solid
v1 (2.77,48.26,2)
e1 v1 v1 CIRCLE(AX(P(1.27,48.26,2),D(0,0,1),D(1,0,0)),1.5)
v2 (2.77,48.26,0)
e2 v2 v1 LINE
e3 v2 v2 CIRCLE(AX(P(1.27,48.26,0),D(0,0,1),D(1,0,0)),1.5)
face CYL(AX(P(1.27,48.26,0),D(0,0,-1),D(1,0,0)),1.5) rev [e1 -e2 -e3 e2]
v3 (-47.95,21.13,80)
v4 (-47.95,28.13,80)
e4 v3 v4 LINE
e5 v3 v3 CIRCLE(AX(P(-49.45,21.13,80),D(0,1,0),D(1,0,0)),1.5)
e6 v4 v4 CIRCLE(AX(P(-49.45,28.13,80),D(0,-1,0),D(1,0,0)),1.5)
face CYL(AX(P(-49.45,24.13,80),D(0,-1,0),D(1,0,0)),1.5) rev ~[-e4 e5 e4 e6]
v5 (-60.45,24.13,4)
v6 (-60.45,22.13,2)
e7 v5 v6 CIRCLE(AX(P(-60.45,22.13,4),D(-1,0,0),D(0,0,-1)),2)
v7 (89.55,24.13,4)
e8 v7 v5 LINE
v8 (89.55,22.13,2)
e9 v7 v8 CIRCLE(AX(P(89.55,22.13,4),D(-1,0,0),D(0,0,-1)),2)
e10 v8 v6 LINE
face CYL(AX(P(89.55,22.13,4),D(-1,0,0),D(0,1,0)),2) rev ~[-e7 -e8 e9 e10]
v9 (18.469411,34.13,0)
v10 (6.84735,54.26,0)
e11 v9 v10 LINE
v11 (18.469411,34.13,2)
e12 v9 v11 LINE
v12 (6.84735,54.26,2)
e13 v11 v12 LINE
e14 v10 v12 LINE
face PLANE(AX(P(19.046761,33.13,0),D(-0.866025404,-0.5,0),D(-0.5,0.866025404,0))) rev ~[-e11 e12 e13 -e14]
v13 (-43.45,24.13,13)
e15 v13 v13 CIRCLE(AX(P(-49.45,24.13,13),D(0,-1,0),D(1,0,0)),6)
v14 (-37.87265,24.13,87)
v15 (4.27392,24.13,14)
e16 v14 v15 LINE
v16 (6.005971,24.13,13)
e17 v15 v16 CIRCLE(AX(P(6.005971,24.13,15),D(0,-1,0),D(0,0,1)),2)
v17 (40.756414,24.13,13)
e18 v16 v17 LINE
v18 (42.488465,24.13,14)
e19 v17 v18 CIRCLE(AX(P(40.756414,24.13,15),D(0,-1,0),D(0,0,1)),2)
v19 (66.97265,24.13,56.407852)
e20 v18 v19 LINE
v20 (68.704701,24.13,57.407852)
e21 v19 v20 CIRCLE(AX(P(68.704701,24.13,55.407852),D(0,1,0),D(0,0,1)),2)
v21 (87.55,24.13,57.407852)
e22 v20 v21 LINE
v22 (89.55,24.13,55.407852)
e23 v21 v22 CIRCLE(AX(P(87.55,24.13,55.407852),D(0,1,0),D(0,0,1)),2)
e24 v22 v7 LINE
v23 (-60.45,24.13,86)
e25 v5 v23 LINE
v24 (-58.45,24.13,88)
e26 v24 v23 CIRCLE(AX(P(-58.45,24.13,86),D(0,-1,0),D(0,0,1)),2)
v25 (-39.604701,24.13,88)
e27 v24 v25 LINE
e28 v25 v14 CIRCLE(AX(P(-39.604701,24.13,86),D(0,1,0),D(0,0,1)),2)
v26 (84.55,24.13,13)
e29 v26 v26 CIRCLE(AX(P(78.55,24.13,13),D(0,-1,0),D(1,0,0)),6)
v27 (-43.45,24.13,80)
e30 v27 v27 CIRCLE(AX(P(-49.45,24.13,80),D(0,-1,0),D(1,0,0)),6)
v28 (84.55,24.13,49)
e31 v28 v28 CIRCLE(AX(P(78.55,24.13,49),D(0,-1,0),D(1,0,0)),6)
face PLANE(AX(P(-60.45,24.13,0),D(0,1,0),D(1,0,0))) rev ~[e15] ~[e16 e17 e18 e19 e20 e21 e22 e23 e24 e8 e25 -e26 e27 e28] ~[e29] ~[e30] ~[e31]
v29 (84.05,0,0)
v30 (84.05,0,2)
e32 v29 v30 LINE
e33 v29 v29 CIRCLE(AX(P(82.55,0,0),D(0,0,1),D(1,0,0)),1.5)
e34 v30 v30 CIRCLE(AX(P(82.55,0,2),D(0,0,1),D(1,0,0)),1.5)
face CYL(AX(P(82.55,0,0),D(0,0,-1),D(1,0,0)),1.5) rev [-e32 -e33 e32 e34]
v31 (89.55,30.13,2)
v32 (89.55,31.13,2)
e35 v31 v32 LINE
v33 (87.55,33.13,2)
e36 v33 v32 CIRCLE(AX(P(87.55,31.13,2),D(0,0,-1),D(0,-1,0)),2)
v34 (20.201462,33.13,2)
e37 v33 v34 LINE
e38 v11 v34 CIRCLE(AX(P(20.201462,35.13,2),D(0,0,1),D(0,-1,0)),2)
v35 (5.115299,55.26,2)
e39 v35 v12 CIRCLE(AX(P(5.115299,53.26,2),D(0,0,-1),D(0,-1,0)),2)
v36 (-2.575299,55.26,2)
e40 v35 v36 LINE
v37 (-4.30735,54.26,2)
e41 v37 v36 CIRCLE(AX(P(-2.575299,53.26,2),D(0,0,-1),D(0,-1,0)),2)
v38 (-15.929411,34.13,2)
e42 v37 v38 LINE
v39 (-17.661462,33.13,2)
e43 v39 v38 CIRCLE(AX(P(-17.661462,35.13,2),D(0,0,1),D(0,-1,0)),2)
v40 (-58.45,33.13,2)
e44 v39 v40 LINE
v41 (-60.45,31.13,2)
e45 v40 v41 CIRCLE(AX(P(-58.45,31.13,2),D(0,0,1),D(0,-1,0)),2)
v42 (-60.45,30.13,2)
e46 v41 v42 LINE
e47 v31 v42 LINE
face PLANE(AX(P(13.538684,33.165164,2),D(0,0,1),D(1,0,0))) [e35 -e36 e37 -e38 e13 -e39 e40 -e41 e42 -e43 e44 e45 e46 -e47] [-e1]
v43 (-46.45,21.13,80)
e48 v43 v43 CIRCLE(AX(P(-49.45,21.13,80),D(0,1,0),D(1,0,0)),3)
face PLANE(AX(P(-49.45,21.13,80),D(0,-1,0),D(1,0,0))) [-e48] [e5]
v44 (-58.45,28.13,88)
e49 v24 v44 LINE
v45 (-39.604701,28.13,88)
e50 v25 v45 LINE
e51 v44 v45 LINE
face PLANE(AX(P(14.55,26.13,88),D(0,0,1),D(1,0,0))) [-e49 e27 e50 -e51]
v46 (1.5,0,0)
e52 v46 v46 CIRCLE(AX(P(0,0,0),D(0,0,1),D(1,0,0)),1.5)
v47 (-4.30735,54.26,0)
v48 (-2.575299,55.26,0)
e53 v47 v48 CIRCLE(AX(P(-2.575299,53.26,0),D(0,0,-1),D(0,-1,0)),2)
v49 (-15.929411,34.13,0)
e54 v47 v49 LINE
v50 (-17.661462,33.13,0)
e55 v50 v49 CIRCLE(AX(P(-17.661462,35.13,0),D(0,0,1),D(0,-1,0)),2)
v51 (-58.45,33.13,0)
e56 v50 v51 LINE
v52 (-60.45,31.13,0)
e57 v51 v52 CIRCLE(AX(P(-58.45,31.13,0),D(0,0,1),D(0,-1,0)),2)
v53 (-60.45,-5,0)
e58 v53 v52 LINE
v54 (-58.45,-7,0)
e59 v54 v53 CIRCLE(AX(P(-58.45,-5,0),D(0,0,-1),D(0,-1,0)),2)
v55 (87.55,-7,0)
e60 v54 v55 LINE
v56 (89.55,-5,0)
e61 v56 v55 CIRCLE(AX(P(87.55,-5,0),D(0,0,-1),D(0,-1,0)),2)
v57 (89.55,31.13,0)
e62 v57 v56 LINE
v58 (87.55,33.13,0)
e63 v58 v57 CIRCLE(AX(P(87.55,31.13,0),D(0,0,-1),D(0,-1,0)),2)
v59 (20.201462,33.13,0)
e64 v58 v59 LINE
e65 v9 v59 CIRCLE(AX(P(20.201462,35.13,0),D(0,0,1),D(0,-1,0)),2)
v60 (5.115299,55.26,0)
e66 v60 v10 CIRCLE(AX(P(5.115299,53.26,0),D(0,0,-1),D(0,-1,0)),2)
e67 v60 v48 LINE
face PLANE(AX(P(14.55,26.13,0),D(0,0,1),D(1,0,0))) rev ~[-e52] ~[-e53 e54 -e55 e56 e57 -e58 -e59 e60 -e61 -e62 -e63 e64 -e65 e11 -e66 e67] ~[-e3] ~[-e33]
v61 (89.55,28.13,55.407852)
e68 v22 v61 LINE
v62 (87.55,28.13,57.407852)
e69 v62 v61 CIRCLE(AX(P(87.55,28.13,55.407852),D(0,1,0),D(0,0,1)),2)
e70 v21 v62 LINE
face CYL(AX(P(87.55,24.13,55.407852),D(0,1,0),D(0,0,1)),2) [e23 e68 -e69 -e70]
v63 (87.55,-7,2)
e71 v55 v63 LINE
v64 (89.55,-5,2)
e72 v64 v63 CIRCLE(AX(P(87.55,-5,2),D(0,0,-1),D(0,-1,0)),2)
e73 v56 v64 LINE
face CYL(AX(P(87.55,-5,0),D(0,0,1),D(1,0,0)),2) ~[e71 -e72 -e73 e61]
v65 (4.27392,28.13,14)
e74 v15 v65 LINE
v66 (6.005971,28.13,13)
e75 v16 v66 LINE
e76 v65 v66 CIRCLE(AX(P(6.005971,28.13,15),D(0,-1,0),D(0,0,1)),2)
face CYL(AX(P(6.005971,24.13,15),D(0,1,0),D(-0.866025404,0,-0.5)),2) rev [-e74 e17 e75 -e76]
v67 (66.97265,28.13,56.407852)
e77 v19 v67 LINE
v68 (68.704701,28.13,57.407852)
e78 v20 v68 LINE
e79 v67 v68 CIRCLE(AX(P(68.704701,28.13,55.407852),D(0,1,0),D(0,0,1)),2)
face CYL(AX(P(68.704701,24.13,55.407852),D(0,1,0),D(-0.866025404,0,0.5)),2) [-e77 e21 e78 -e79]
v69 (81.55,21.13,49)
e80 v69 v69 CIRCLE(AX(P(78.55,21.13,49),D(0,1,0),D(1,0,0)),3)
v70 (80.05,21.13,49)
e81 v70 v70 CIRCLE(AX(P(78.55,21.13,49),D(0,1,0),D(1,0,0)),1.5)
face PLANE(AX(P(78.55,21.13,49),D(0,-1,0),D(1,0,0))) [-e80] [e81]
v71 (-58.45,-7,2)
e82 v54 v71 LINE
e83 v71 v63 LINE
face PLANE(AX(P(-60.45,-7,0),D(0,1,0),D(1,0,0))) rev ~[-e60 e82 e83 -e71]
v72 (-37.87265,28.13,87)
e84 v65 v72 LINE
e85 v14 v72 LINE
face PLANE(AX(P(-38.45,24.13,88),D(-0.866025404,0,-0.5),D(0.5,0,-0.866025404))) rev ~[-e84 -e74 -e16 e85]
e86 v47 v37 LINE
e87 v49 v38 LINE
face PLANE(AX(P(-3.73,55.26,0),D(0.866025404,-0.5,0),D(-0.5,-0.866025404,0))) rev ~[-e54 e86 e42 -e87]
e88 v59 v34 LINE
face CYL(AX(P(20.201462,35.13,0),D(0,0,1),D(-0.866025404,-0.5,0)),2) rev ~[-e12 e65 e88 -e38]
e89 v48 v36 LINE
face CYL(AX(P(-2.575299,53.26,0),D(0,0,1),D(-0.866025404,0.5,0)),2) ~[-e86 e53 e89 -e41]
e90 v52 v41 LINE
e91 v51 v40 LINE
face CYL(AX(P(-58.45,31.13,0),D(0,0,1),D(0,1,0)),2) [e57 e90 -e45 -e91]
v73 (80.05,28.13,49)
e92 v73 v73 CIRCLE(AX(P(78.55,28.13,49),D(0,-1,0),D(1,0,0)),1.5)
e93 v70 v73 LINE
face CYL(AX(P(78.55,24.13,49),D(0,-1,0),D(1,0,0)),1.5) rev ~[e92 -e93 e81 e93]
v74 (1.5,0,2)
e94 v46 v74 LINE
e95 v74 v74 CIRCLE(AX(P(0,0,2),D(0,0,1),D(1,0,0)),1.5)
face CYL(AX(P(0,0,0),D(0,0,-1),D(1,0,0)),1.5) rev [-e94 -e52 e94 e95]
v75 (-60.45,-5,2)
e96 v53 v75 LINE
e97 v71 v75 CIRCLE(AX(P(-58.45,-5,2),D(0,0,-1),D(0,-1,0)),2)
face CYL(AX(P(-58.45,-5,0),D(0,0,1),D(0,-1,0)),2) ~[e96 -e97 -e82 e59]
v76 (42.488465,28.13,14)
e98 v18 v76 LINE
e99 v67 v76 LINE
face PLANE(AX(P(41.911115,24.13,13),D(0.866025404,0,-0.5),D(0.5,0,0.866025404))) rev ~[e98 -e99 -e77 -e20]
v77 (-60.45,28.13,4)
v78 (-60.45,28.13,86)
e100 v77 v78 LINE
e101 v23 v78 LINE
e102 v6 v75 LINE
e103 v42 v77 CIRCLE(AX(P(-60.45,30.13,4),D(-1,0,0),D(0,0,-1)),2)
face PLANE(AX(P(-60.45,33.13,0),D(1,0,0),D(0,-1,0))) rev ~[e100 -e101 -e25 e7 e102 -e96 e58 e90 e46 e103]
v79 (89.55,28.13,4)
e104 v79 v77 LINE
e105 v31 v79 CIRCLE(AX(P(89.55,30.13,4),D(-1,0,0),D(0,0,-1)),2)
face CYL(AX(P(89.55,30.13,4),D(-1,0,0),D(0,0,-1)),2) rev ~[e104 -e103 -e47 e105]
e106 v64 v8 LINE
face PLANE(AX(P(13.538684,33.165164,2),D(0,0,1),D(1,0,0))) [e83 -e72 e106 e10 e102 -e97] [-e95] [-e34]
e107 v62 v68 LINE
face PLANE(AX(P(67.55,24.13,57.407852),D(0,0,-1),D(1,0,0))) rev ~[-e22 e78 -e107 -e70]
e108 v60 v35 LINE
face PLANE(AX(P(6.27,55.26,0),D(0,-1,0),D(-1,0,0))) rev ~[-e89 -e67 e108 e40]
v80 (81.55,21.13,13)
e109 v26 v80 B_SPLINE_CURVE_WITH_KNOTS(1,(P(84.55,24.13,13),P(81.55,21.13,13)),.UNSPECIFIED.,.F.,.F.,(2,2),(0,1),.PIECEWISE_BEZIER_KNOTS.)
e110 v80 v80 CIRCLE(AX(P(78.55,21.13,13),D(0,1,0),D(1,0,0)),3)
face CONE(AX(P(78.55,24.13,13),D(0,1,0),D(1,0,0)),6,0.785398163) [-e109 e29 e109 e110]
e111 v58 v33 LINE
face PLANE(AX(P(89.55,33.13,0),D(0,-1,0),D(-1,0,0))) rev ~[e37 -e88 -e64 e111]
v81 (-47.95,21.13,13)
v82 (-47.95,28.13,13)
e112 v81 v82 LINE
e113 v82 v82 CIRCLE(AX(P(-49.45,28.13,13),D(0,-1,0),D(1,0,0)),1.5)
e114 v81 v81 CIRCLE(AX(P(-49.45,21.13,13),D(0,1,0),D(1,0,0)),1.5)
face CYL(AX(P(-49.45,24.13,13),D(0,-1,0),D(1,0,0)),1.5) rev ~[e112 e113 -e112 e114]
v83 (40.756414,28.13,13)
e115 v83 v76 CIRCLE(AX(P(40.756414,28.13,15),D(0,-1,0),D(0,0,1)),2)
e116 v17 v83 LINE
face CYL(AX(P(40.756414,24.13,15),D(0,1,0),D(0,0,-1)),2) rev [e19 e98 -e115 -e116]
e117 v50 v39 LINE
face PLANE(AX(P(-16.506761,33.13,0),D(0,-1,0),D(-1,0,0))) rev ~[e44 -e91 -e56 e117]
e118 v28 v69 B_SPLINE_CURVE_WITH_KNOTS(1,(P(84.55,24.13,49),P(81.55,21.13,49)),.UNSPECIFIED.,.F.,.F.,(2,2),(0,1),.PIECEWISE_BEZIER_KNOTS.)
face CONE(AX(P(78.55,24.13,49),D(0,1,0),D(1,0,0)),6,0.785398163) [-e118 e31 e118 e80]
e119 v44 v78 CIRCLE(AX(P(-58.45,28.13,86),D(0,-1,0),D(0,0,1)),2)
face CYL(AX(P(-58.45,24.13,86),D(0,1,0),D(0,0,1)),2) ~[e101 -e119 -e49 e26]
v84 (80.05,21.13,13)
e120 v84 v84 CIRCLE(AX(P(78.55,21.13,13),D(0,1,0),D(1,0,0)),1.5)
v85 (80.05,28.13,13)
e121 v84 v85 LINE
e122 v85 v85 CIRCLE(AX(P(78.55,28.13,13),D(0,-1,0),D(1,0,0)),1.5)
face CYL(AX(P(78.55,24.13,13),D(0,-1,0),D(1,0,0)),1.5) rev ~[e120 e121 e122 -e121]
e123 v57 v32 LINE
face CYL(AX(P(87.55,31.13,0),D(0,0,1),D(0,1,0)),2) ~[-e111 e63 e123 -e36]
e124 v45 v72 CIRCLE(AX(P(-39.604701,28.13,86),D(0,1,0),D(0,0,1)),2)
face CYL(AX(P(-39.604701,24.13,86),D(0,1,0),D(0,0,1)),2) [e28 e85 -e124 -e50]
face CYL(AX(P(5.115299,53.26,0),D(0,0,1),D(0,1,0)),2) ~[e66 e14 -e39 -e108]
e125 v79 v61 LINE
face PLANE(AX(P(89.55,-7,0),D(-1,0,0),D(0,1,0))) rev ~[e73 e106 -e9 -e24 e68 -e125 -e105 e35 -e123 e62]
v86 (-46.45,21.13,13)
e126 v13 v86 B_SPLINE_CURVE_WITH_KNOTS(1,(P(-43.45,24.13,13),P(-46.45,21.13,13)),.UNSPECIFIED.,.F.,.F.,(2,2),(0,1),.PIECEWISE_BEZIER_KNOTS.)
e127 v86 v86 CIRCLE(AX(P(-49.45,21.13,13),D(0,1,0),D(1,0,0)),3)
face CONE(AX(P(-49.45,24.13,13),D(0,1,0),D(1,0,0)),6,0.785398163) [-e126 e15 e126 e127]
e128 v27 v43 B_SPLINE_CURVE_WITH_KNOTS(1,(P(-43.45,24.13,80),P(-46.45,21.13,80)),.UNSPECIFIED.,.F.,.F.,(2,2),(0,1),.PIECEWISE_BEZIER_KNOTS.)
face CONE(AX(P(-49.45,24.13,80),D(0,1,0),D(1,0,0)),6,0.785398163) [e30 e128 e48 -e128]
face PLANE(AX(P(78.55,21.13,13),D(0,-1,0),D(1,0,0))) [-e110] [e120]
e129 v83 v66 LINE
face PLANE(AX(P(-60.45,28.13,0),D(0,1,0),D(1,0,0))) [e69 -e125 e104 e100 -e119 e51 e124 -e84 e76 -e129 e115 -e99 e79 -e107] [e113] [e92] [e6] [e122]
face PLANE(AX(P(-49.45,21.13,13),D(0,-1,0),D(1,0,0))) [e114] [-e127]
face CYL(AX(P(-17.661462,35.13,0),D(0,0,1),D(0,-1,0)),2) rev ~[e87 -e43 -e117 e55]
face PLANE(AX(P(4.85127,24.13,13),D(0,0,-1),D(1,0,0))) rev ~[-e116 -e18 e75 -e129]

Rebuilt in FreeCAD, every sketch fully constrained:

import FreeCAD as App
import Part
import Sketcher
from FreeCAD import Vector
Q = App.Units.Quantity


def edges_at(feature, points):
    """Names of the edges that pass closest to the given points."""
    edges = feature.Shape.Edges
    near = lambda p: min(range(len(edges)), key=lambda i: edges[i].distToShape(Part.Vertex(*p))[0])
    return sorted({f"Edge{near(p) + 1}" for p in points})


def add_polygon(sketch, points):
    """Adds a closed chain of lines whose ends are joined by coincident constraints."""
    first, n = sketch.GeometryCount, len(points)
    for a, b in zip(points, points[1:] + points[:1]):
        sketch.addGeometry(Part.LineSegment(App.Vector(*a, 0), App.Vector(*b, 0)), False)
    for i in range(n):
        sketch.addConstraint(Sketcher.Constraint("Coincident", first + i, 2, first + (i + 1) % n, 1))

doc = App.newDocument("Part")
body = doc.addObject("PartDesign::Body", "Body")

sketch1 = body.newObject("Sketcher::SketchObject", "Sketch")
sketch1.AttachmentSupport = (doc.getObject("XY_Plane"), [""])
sketch1.MapMode = "FlatFace"
add_polygon(sketch1, [(6.3, 55.3), (-3.7, 55.3), (-16.5, 33.1), (-60.5, 33.1), (-60.5, -7), (89.5, -7), (89.5, 33.1), (19, 33.1)])
sketch1.addGeometry(Part.Circle(Vector(0, 0, 0), Vector(0, 0, 1), 1.5), False)
sketch1.addGeometry(Part.Circle(Vector(82.5, 0, 0), Vector(0, 0, 1), 1.5), False)
sketch1.addGeometry(Part.Circle(Vector(1.3, 48.3, 0), Vector(0, 0, 1), 1.5), False)
sketch1.addConstraint([
    Sketcher.Constraint("Horizontal", 0),
    Sketcher.Constraint("Horizontal", 2),
    Sketcher.Constraint("Vertical", 3),
    Sketcher.Constraint("Horizontal", 4),
    Sketcher.Constraint("Vertical", 5),
    Sketcher.Constraint("Horizontal", 6),
    Sketcher.Constraint("Coincident", 8, 3, -1, 1),
    Sketcher.Constraint("Equal", 8, 9),
    Sketcher.Constraint("Equal", 9, 10),
    Sketcher.Constraint("PointOnObject", 9, 3, -1),
    Sketcher.Constraint("Horizontal", 2, 2, 5, 2),
    Sketcher.Constraint("Equal", 1, 7),
    Sketcher.Constraint("Diameter", 8, Q("3 mm")),
    Sketcher.Constraint("DistanceX", 0, 2, 0, 1, Q("10 mm")),
    Sketcher.Constraint("DistanceX", 4, 1, 4, 2, Q("150 mm")),
    Sketcher.Constraint("Angle", 1, Q("-120 deg")),
    Sketcher.Constraint("DistanceY", 3, 2, -1, 1, Q("7 mm")),
    Sketcher.Constraint("DistanceX", 0, 2, 10, 3, Q("5 mm")),
    Sketcher.Constraint("DistanceY", 10, 3, 0, 2, Q("7 mm")),
    Sketcher.Constraint("DistanceX", 2, 2, 9, 3, Q("143 mm")),
    Sketcher.Constraint("DistanceY", 3, 2, 3, 1, Q("40.13 mm")),
    Sketcher.Constraint("DistanceX", -1, 1, 9, 3, Q("82.55 mm")),
    Sketcher.Constraint("DistanceX", -1, 1, 10, 3, Q("1.27 mm")),
    Sketcher.Constraint("DistanceY", -1, 1, 10, 3, Q("48.26 mm")),
])
pad1 = body.newObject("PartDesign::Pad", "Pad")
pad1.Profile = sketch1
pad1.Length = 2

sketch2 = body.newObject("Sketcher::SketchObject", "Sketch001")
sketch2.AttachmentSupport = (doc.getObject("XY_Plane"), [""])
sketch2.MapMode = "FlatFace"
add_polygon(sketch2, [(-60.5, 28.1), (-60.5, 24.1), (89.5, 24.1), (89.5, 28.1)])
sketch2.addConstraint([
    Sketcher.Constraint("Vertical", 0),
    Sketcher.Constraint("Horizontal", 1),
    Sketcher.Constraint("Vertical", 2),
    Sketcher.Constraint("Horizontal", 3),
    Sketcher.Constraint("DistanceX", 1, 1, 1, 2, Q("150 mm")),
    Sketcher.Constraint("DistanceY", 0, 2, 0, 1, Q("4 mm")),
    Sketcher.Constraint("DistanceX", 0, 2, -1, 1, Q("60.45 mm")),
    Sketcher.Constraint("DistanceY", -1, 1, 0, 2, Q("24.13 mm")),
])
pad2 = body.newObject("PartDesign::Pad", "Pad001")
pad2.Profile = sketch2
pad2.Length = 88

sketch3 = body.newObject("Sketcher::SketchObject", "Sketch002")
sketch3.AttachmentSupport = (doc.getObject("XZ_Plane"), [""])
sketch3.MapMode = "FlatFace"
sketch3.AttachmentOffset = App.Placement(Vector(0, 0, -24.13), App.Rotation())
sketch3.addGeometry([
    Part.Circle(Vector(-49, 80, 0), Vector(0, 0, 1), 6),
    Part.Circle(Vector(-49, 13, 0), Vector(0, 0, 1), 6),
    Part.Circle(Vector(79, 13, 0), Vector(0, 0, 1), 6),
    Part.Circle(Vector(79, 49, 0), Vector(0, 0, 1), 6),
], False)
sketch3.addConstraint([
    Sketcher.Constraint("Equal", 0, 1),
    Sketcher.Constraint("Equal", 1, 2),
    Sketcher.Constraint("Equal", 2, 3),
    Sketcher.Constraint("Horizontal", 1, 3, 2, 3),
    Sketcher.Constraint("Vertical", 0, 3, 1, 3),
    Sketcher.Constraint("Vertical", 2, 3, 3, 3),
    Sketcher.Constraint("Diameter", 0, Q("12 mm")),
    Sketcher.Constraint("DistanceY", -1, 1, 0, 3, Q("80 mm")),
    Sketcher.Constraint("DistanceY", -1, 1, 1, 3, Q("13 mm")),
    Sketcher.Constraint("DistanceY", -1, 1, 3, 3, Q("49 mm")),
    Sketcher.Constraint("DistanceX", 1, 3, 2, 3, Q("128 mm")),
    Sketcher.Constraint("DistanceX", 0, 3, -1, 1, Q("49.45 mm")),
])
pad3 = body.newObject("PartDesign::Pad", "Pad002")
pad3.Profile = sketch3
pad3.Length = 3
pad3.TaperAngle = -45

sketch4 = body.newObject("Sketcher::SketchObject", "Sketch003")
sketch4.AttachmentSupport = (doc.getObject("XZ_Plane"), [""])
sketch4.MapMode = "FlatFace"
sketch4.AttachmentOffset = App.Placement(Vector(0, 0, -24.13), App.Rotation())
sketch4.addGeometry(Part.Circle(Vector(-49.5, 13, 0), Vector(0, 0, 1), 1.5), False)
sketch4.addGeometry(Part.Circle(Vector(78.5, 13, 0), Vector(0, 0, 1), 1.5), False)
sketch4.addGeometry(Part.Circle(Vector(78.5, 49, 0), Vector(0, 0, 1), 1.5), False)
sketch4.addGeometry(Part.Circle(Vector(-49.5, 80, 0), Vector(0, 0, 1), 1.5), False)
add_polygon(sketch4, [(89.5, 88), (-38.5, 88), (4.9, 13), (41.9, 13), (67.5, 57.4), (89.5, 57.4)])
sketch4.addConstraint([
    Sketcher.Constraint("Horizontal", 4),
    Sketcher.Constraint("Horizontal", 6),
    Sketcher.Constraint("Horizontal", 8),
    Sketcher.Constraint("Vertical", 9),
    Sketcher.Constraint("Equal", 0, 1),
    Sketcher.Constraint("Equal", 1, 2),
    Sketcher.Constraint("Equal", 2, 3),
    Sketcher.Constraint("Horizontal", 0, 3, 1, 3),
    Sketcher.Constraint("Horizontal", 1, 3, 5, 2),
    Sketcher.Constraint("Vertical", 1, 3, 2, 3),
    Sketcher.Constraint("Vertical", 0, 3, 3, 3),
    Sketcher.Constraint("Diameter", 0, Q("3 mm")),
    Sketcher.Constraint("DistanceX", 4, 2, 4, 1, Q("128 mm")),
    Sketcher.Constraint("DistanceX", 8, 1, 8, 2, Q("22 mm")),
    Sketcher.Constraint("Angle", 5, Q("-60 deg")),
    Sketcher.Constraint("Angle", 7, Q("60 deg")),
    Sketcher.Constraint("DistanceY", -1, 1, 0, 3, Q("13 mm")),
    Sketcher.Constraint("DistanceY", -1, 1, 2, 3, Q("49 mm")),
    Sketcher.Constraint("DistanceY", -1, 1, 3, 3, Q("80 mm")),
    Sketcher.Constraint("DistanceY", -1, 1, 4, 2, Q("88 mm")),
    Sketcher.Constraint("DistanceX", 0, 3, 1, 3, Q("128 mm")),
    Sketcher.Constraint("DistanceX", 3, 3, 4, 2, Q("11 mm")),
    Sketcher.Constraint("DistanceX", 0, 3, -1, 1, Q("49.45 mm")),
    Sketcher.Constraint("Distance", 7, Q("51.277771 mm")),
])
pocket1 = body.newObject("PartDesign::Pocket", "Pocket")
pocket1.Profile = sketch4
pocket1.Type = "ThroughAll"
pocket1.Midplane = True
doc.recompute()

fillet = body.newObject("PartDesign::Fillet", "Fillet")
fillet.Base = (pocket1, edges_at(pocket1, [
    (-60.45, 26.13, 88),
    (-38.45, 26.13, 88),
    (4.851, 26.13, 13),
    (41.911, 26.13, 13),
    (67.55, 26.13, 57.408),
    (89.55, 26.13, 57.408),
    (89.55, -7, 1),
    (89.55, 33.13, 1),
    (19.047, 33.13, 1),
    (6.27, 55.26, 1),
    (-3.73, 55.26, 1),
    (-16.507, 33.13, 1),
    (-60.45, 33.13, 1),
    (-60.45, -7, 1),
    (14.55, 24.13, 2),
    (14.55, 28.13, 2),
]))
fillet.Radius = 2

doc.recompute()
